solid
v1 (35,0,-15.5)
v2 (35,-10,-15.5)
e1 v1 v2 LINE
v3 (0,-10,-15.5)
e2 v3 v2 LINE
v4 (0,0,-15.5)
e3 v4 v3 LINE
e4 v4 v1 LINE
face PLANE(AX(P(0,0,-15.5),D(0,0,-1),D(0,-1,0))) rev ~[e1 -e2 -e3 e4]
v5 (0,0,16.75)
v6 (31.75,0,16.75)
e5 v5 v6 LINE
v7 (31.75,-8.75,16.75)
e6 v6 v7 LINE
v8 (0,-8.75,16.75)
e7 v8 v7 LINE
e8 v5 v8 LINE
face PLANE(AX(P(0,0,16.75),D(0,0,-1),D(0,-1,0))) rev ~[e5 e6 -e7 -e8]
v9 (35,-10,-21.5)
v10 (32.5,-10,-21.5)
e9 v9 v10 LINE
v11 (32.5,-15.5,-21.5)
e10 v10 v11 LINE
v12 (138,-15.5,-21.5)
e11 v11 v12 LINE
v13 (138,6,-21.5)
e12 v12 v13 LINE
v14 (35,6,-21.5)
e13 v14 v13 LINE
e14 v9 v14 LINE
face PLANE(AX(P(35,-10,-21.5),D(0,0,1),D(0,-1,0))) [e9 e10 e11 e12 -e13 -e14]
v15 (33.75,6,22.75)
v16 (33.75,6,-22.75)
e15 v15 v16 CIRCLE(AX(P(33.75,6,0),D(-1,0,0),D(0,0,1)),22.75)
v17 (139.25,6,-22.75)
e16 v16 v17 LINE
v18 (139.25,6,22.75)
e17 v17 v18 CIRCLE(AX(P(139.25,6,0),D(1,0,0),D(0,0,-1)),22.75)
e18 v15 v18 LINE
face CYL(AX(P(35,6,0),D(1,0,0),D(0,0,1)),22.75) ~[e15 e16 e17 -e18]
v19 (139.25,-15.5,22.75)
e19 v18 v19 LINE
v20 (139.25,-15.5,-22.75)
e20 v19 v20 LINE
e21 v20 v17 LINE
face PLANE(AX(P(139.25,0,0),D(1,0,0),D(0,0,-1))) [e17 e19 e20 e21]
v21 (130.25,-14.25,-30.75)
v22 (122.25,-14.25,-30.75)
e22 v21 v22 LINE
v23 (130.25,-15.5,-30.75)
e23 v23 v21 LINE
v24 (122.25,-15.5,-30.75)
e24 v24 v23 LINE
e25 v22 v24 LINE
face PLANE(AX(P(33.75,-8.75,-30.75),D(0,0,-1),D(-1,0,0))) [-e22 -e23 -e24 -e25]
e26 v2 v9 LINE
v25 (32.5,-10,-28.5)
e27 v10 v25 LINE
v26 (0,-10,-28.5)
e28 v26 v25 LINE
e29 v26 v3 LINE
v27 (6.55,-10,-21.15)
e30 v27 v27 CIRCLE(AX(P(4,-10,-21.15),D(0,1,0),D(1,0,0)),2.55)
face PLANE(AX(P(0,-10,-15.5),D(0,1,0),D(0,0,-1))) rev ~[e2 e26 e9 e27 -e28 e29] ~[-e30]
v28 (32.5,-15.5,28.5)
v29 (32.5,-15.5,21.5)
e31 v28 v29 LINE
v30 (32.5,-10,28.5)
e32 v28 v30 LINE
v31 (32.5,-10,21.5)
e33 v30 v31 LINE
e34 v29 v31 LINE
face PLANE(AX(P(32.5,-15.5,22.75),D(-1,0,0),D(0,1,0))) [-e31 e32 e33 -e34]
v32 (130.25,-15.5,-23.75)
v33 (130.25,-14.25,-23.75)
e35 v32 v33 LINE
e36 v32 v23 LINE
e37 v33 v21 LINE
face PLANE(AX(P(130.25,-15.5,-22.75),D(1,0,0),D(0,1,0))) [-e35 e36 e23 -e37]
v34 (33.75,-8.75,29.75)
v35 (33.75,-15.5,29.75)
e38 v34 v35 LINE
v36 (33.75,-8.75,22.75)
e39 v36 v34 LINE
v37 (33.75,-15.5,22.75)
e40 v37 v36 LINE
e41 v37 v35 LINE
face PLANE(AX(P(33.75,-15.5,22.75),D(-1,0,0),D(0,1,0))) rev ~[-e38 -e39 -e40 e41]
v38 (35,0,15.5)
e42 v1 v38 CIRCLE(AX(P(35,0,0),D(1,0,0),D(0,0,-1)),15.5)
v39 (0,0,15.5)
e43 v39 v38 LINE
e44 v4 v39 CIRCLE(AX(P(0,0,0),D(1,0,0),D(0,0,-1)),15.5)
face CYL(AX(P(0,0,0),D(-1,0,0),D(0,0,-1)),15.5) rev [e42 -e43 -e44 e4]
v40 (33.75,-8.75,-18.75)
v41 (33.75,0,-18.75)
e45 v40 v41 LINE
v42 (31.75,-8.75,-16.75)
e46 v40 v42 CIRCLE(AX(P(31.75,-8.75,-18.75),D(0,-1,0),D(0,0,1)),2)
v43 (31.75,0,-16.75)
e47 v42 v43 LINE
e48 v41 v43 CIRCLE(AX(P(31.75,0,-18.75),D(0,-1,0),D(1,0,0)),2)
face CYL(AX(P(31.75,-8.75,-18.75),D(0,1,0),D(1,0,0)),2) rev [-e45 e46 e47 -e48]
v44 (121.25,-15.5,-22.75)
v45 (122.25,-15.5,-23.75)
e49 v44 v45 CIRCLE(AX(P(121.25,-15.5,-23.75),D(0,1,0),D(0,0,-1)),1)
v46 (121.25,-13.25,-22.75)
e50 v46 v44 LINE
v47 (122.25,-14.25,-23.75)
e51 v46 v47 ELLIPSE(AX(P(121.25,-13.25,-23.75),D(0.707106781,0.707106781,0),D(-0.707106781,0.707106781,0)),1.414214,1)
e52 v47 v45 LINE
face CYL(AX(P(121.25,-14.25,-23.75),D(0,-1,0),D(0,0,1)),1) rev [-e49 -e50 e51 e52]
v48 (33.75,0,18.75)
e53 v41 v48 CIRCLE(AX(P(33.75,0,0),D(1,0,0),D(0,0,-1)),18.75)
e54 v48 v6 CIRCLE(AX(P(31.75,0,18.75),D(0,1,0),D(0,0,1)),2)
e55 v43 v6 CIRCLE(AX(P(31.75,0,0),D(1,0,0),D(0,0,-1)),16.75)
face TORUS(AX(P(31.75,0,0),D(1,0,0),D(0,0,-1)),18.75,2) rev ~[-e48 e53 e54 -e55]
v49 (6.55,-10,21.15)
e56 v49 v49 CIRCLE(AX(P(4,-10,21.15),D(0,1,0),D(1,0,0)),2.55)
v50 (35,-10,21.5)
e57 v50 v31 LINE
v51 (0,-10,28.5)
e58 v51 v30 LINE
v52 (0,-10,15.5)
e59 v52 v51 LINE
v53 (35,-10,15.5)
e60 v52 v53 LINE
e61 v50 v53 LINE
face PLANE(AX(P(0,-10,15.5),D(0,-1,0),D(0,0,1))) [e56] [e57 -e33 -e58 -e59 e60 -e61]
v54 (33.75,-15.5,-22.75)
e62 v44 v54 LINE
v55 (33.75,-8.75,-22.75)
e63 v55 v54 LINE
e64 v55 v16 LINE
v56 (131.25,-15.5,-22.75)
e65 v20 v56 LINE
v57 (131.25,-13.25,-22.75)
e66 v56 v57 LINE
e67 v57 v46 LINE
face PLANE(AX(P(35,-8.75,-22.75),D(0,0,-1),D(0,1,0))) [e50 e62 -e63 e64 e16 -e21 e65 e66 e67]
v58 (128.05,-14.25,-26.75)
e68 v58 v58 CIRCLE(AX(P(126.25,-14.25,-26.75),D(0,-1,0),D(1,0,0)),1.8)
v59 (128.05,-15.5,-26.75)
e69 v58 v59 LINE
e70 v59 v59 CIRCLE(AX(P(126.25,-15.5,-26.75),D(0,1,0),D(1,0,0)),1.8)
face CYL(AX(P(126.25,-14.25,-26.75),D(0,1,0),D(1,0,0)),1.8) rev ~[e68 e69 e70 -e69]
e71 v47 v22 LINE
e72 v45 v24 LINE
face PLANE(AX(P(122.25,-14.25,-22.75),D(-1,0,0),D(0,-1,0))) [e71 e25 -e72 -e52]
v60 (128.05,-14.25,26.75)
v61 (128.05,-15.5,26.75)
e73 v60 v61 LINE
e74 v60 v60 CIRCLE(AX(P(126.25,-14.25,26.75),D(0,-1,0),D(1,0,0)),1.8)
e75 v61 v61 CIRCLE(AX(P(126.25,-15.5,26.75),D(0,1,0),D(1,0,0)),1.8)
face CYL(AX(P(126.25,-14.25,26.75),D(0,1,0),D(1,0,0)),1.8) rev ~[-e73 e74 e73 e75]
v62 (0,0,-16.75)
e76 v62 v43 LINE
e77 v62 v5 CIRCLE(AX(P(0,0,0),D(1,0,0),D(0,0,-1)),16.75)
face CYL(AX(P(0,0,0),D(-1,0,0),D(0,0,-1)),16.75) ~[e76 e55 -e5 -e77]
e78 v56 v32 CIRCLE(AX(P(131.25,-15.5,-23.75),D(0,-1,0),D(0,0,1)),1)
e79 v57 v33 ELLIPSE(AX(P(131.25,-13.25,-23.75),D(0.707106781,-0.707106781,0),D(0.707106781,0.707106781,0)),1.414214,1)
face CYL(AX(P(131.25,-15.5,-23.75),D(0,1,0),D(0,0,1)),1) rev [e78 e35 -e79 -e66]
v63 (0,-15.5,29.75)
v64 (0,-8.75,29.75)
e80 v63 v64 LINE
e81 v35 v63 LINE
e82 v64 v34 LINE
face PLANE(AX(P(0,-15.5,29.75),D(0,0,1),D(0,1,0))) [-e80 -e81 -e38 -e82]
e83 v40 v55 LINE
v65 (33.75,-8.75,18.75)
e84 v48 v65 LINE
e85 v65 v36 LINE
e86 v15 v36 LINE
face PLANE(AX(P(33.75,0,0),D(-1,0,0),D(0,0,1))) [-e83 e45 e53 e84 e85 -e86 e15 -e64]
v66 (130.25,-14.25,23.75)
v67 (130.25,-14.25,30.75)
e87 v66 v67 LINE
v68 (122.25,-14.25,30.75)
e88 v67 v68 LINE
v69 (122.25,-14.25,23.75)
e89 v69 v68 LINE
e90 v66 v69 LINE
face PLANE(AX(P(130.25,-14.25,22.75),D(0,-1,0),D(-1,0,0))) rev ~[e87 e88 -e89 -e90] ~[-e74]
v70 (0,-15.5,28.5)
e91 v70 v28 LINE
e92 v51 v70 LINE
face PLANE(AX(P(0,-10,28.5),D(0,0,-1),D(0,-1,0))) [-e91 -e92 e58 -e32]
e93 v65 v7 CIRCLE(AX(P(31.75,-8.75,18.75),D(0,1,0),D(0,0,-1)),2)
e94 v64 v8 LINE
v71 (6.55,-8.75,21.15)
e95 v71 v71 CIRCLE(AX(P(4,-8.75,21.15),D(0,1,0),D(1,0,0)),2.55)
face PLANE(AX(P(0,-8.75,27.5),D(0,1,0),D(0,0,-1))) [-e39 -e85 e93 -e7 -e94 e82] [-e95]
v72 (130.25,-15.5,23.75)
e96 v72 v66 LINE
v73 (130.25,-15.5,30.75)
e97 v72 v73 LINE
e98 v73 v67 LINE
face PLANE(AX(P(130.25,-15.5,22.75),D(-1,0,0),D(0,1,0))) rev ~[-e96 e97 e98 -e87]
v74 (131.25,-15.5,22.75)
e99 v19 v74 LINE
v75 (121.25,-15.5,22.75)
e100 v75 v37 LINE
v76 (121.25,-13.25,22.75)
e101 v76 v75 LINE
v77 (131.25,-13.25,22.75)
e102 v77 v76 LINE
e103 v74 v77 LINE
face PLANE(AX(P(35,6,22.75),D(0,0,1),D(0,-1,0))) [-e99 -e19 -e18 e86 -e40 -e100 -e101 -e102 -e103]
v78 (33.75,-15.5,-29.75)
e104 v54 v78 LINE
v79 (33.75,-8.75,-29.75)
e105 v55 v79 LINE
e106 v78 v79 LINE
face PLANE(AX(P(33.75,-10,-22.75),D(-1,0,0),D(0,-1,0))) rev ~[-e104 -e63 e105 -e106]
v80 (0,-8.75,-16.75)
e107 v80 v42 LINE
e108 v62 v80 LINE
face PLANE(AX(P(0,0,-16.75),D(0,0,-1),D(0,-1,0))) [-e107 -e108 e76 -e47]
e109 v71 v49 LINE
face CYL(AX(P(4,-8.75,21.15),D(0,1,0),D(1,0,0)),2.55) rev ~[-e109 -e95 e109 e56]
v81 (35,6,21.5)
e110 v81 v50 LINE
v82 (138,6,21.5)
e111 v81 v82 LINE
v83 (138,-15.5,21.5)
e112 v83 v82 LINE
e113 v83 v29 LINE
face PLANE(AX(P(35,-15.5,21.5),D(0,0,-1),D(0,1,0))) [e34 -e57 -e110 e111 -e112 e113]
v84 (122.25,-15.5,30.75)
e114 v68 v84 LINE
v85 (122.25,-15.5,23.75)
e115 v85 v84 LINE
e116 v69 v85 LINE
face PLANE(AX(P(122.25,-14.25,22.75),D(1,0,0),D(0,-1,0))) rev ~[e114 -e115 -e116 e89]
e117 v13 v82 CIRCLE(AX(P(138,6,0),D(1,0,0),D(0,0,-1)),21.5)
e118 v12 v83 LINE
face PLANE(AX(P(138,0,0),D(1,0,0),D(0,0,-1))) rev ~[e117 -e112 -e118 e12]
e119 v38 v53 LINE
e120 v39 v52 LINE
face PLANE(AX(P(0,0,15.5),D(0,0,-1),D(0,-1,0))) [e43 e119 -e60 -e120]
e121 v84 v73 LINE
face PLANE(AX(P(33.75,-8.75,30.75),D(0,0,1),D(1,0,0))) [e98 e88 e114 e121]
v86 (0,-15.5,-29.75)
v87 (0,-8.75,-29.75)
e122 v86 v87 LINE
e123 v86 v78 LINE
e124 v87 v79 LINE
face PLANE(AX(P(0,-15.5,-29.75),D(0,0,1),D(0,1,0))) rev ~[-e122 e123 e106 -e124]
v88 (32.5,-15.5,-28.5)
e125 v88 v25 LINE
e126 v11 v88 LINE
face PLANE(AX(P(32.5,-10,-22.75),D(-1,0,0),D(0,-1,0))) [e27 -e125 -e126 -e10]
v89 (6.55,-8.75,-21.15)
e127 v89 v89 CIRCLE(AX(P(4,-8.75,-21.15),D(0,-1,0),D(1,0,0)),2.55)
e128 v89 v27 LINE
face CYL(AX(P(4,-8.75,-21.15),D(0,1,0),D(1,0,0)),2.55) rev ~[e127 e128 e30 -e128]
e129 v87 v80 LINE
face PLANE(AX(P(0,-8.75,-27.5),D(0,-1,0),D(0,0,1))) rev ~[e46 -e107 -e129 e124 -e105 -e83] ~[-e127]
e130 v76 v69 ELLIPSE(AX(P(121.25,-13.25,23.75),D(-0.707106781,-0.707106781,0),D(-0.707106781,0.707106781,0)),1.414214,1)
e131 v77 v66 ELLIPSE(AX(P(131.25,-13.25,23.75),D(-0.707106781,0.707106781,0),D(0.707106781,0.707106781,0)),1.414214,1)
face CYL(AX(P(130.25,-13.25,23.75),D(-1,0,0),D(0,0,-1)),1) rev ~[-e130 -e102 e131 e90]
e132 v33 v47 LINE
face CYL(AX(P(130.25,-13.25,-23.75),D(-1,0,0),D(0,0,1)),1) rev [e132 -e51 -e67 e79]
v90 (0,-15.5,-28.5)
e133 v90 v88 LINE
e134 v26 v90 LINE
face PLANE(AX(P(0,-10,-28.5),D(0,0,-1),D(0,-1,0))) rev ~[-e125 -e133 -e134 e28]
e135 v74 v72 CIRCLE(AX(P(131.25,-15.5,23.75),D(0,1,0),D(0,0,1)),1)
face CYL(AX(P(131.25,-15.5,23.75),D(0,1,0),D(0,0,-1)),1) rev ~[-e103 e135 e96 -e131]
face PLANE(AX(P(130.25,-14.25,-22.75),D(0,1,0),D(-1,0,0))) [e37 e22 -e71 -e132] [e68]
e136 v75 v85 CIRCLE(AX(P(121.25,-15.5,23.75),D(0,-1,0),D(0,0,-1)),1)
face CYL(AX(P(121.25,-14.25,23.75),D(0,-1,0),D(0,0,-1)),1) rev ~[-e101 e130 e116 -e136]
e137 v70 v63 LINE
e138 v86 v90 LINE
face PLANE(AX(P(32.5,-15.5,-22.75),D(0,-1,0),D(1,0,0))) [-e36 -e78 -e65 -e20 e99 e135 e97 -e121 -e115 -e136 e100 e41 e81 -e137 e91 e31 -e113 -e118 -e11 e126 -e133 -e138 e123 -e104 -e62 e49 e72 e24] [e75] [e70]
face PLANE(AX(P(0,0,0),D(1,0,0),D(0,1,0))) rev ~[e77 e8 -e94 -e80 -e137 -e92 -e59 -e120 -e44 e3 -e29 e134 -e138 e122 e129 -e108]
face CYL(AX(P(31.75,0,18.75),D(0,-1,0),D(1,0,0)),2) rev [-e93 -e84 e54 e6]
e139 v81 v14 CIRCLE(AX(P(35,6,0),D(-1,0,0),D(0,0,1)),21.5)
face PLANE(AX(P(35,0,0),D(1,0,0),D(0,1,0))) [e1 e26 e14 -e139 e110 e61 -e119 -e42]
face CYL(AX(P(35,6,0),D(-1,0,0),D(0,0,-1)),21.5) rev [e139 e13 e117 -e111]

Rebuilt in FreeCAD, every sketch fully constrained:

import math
import FreeCAD as App
import Part
import Sketcher

V = App.Vector
Q = App.Units.Quantity


def edges_at(feature, points):
    """Names of the edges that pass closest to the given points."""
    edges = feature.Shape.Edges
    near = lambda p: min(range(len(edges)), key=lambda i: edges[i].distToShape(Part.Vertex(*p))[0])
    return sorted({f"Edge{near(p) + 1}" for p in points})

doc = App.newDocument("Part")
body = doc.addObject("PartDesign::Body", "Body")

# Sketch on YZ plane
sketch1 = body.newObject("Sketcher::SketchObject", "Sketch")
sketch1.AttachmentSupport = (doc.getObject("YZ_Plane"), [""])
sketch1.MapMode = "FlatFace"
sketch1.addGeometry([
    Part.LineSegment(V(-8.8, -16.8, 0), V(0, -16.8, 0)),  # 0
    Part.ArcOfCircle(Part.Circle(V(0, 0, 0), V(0, 0, 1), 16.8), math.radians(-90), math.radians(90)),  # 1
    Part.LineSegment(V(0, 16.8, 0), V(-8.8, 16.8, 0)),  # 2
    Part.LineSegment(V(-8.8, 16.8, 0), V(-8.8, 29.8, 0)),  # 3
    Part.LineSegment(V(-8.8, 29.8, 0), V(-15.5, 29.8, 0)),  # 4
    Part.LineSegment(V(-15.5, 29.8, 0), V(-15.5, 28.5, 0)),  # 5
    Part.LineSegment(V(-15.5, 28.5, 0), V(-10, 28.5, 0)),  # 6
    Part.LineSegment(V(-10, 28.5, 0), V(-10, 15.5, 0)),  # 7
    Part.LineSegment(V(-10, 15.5, 0), V(0, 15.5, 0)),  # 8
    Part.ArcOfCircle(Part.Circle(V(0, 0, 0), V(0, 0, 1), 15.5), math.radians(-90), math.radians(90)),  # 9
    Part.LineSegment(V(0, -15.5, 0), V(-10, -15.5, 0)),  # 10
    Part.LineSegment(V(-10, -15.5, 0), V(-10, -28.5, 0)),  # 11
    Part.LineSegment(V(-10, -28.5, 0), V(-15.5, -28.5, 0)),  # 12
    Part.LineSegment(V(-15.5, -28.5, 0), V(-15.5, -29.8, 0)),  # 13
    Part.LineSegment(V(-15.5, -29.8, 0), V(-8.8, -29.8, 0)),  # 14
    Part.LineSegment(V(-8.8, -29.8, 0), V(-8.8, -16.8, 0)),  # 15
], False)
sketch1.addConstraint([
    Sketcher.Constraint("Tangent", 0, 2, 1, 1),
    Sketcher.Constraint("Tangent", 1, 2, 2, 1),
    Sketcher.Constraint("Coincident", 2, 2, 3, 1),
    Sketcher.Constraint("Coincident", 3, 2, 4, 1),
    Sketcher.Constraint("Coincident", 4, 2, 5, 1),
    Sketcher.Constraint("Coincident", 5, 2, 6, 1),
    Sketcher.Constraint("Coincident", 6, 2, 7, 1),
    Sketcher.Constraint("Coincident", 7, 2, 8, 1),
    Sketcher.Constraint("Tangent", 8, 2, 9, 2),
    Sketcher.Constraint("Tangent", 9, 1, 10, 1),
    Sketcher.Constraint("Coincident", 10, 2, 11, 1),
    Sketcher.Constraint("Coincident", 11, 2, 12, 1),
    Sketcher.Constraint("Coincident", 12, 2, 13, 1),
    Sketcher.Constraint("Coincident", 13, 2, 14, 1),
    Sketcher.Constraint("Coincident", 14, 2, 15, 1),
    Sketcher.Constraint("Coincident", 15, 2, 0, 1),
    Sketcher.Constraint("Horizontal", 0),
    Sketcher.Constraint("Horizontal", 2),
    Sketcher.Constraint("Vertical", 3),
    Sketcher.Constraint("Horizontal", 4),
    Sketcher.Constraint("Vertical", 5),
    Sketcher.Constraint("Horizontal", 6),
    Sketcher.Constraint("Vertical", 7),
    Sketcher.Constraint("Horizontal", 8),
    Sketcher.Constraint("Horizontal", 10),
    Sketcher.Constraint("Vertical", 11),
    Sketcher.Constraint("Horizontal", 12),
    Sketcher.Constraint("Vertical", 13),
    Sketcher.Constraint("Horizontal", 14),
    Sketcher.Constraint("Vertical", 15),
    Sketcher.Constraint("Coincident", 1, 3, -1, 1),
    Sketcher.Constraint("Coincident", 9, 3, -1, 1),
    Sketcher.Constraint("Symmetric", 6, 2, 11, 2, -1),
    Sketcher.Constraint("Symmetric", 4, 2, 13, 2, -1),
    Sketcher.Constraint("Vertical", 3, 2, 14, 2),
    Sketcher.Constraint("Equal", 3, 7),
    Sketcher.Constraint("Radius", 9, Q("15.5 mm")),
    Sketcher.Constraint("DistanceX", 8, 1, 8, 2, Q("10 mm")),
    Sketcher.Constraint("DistanceY", 5, 2, 5, 1, Q("1.25 mm")),
    Sketcher.Constraint("DistanceY", 3, 1, 3, 2, Q("13 mm")),
    Sketcher.Constraint("DistanceX", 6, 2, 3, 2, Q("1.25 mm")),
    Sketcher.Constraint("DistanceX", 6, 1, 6, 2, Q("5.5 mm")),
])
pad1 = body.newObject("PartDesign::Pad", "Pad")
pad1.Profile = sketch1
pad1.Length = 35

# Sketch on YZ plane
sketch2 = body.newObject("Sketcher::SketchObject", "Sketch001")
sketch2.AttachmentSupport = (doc.getObject("YZ_Plane"), [""])
sketch2.MapMode = "FlatFace"
sketch2.AttachmentOffset = App.Placement(V(0, 0, 35), App.Rotation())
sketch2.addGeometry([
    Part.LineSegment(V(6, -21.5, 0), V(-15.5, -21.5, 0)),  # 0
    Part.LineSegment(V(-15.5, -21.5, 0), V(-15.5, -22.8, 0)),  # 1
    Part.LineSegment(V(-15.5, -22.8, 0), V(6, -22.8, 0)),  # 2
    Part.ArcOfCircle(Part.Circle(V(6, 0, 0), V(0, 0, 1), 22.8), math.radians(-90), math.radians(90)),  # 3
    Part.LineSegment(V(6, 22.8, 0), V(-15.5, 22.8, 0)),  # 4
    Part.LineSegment(V(-15.5, 22.8, 0), V(-15.5, 21.5, 0)),  # 5
    Part.LineSegment(V(-15.5, 21.5, 0), V(6, 21.5, 0)),  # 6
    Part.ArcOfCircle(Part.Circle(V(6, 0, 0), V(0, 0, 1), 21.5), math.radians(-90), math.radians(90)),  # 7
], False)
sketch2.addConstraint([
    Sketcher.Constraint("Coincident", 0, 2, 1, 1),
    Sketcher.Constraint("Coincident", 1, 2, 2, 1),
    Sketcher.Constraint("Tangent", 2, 2, 3, 1),
    Sketcher.Constraint("Tangent", 3, 2, 4, 1),
    Sketcher.Constraint("Coincident", 4, 2, 5, 1),
    Sketcher.Constraint("Coincident", 5, 2, 6, 1),
    Sketcher.Constraint("Tangent", 6, 2, 7, 2),
    Sketcher.Constraint("Tangent", 7, 1, 0, 1),
    Sketcher.Constraint("Horizontal", 0),
    Sketcher.Constraint("Vertical", 1),
    Sketcher.Constraint("Horizontal", 2),
    Sketcher.Constraint("Horizontal", 4),
    Sketcher.Constraint("Vertical", 5),
    Sketcher.Constraint("Horizontal", 6),
    Sketcher.Constraint("Coincident", 7, 3, 3, 3),
    Sketcher.Constraint("Symmetric", 1, 2, 4, 2, -1),
    Sketcher.Constraint("Radius", 7, Q("21.5 mm")),
    Sketcher.Constraint("DistanceX", 0, 2, 0, 1, Q("21.5 mm")),
    Sketcher.Constraint("DistanceY", 1, 2, 1, 1, Q("1.25 mm")),
    Sketcher.Constraint("DistanceX", -1, 1, 3, 3, Q("6 mm")),
])
pad2 = body.newObject("PartDesign::Pad", "Pad001")
pad2.Profile = sketch2
pad2.Length = 103

# Sketch on YZ plane
sketch3 = body.newObject("Sketcher::SketchObject", "Sketch002")
sketch3.AttachmentSupport = (doc.getObject("YZ_Plane"), [""])
sketch3.MapMode = "FlatFace"
sketch3.AttachmentOffset = App.Placement(V(0, 0, 35), App.Rotation())
sketch3.addGeometry([
    Part.LineSegment(V(6, -23, 0), V(-9, -23, 0)),  # 0
    Part.LineSegment(V(-9, -23, 0), V(-9, -17, 0)),  # 1
    Part.LineSegment(V(-9, -17, 0), V(0, -17, 0)),  # 2
    Part.ArcOfCircle(Part.Circle(V(0, 0, 0), V(0, 0, 1), 17), math.radians(-90), math.radians(90)),  # 3
    Part.LineSegment(V(0, 17, 0), V(-9, 17, 0)),  # 4
    Part.LineSegment(V(-9, 17, 0), V(-9, 23, 0)),  # 5
    Part.LineSegment(V(-9, 23, 0), V(6, 23, 0)),  # 6
    Part.ArcOfCircle(Part.Circle(V(6, 0, 0), V(0, 0, 1), 23), math.radians(-90), math.radians(90)),  # 7
], False)
sketch3.addConstraint([
    Sketcher.Constraint("Coincident", 0, 2, 1, 1),
    Sketcher.Constraint("Coincident", 1, 2, 2, 1),
    Sketcher.Constraint("Tangent", 2, 2, 3, 1),
    Sketcher.Constraint("Tangent", 3, 2, 4, 1),
    Sketcher.Constraint("Coincident", 4, 2, 5, 1),
    Sketcher.Constraint("Coincident", 5, 2, 6, 1),
    Sketcher.Constraint("Tangent", 6, 2, 7, 2),
    Sketcher.Constraint("Tangent", 7, 1, 0, 1),
    Sketcher.Constraint("Horizontal", 0),
    Sketcher.Constraint("Vertical", 1),
    Sketcher.Constraint("Horizontal", 2),
    Sketcher.Constraint("Horizontal", 4),
    Sketcher.Constraint("Vertical", 5),
    Sketcher.Constraint("Horizontal", 6),
    Sketcher.Constraint("Coincident", 3, 3, -1, 1),
    Sketcher.Constraint("Symmetric", 0, 2, 5, 2, -1),
    Sketcher.Constraint("DistanceY", 1, 1, 1, 2, Q("6 mm")),
    Sketcher.Constraint("Radius", 3, Q("16.75 mm")),
    Sketcher.Constraint("DistanceX", -1, 1, 7, 3, Q("6 mm")),
    Sketcher.Constraint("DistanceX", 0, 2, 0, 1, Q("14.75 mm")),
])
pad3 = body.newObject("PartDesign::Pad", "Pad002")
pad3.Profile = sketch3
pad3.Length = 1.25
pad3.Reversed = True

# Sketch on XZ plane
sketch4 = body.newObject("Sketcher::SketchObject", "Sketch003")
sketch4.AttachmentSupport = (doc.getObject("XZ_Plane"), [""])
sketch4.MapMode = "FlatFace"
sketch4.AttachmentOffset = App.Placement(V(0, 0, 8.75), App.Rotation())
sketch4.addGeometry([
    Part.LineSegment(V(35, 22.8, 0), V(33.8, 22.8, 0)),  # 0
    Part.LineSegment(V(33.8, 22.8, 0), V(33.8, 29.8, 0)),  # 1
    Part.LineSegment(V(33.8, 29.8, 0), V(35, 29.8, 0)),  # 2
    Part.LineSegment(V(35, 29.8, 0), V(35, 22.8, 0)),  # 3
    Part.LineSegment(V(33.8, -29.8, 0), V(33.8, -22.8, 0)),  # 4
    Part.LineSegment(V(33.8, -22.8, 0), V(35, -22.8, 0)),  # 5
    Part.LineSegment(V(35, -22.8, 0), V(35, -29.8, 0)),  # 6
    Part.LineSegment(V(35, -29.8, 0), V(33.8, -29.8, 0)),  # 7
], False)
sketch4.addConstraint([
    Sketcher.Constraint("Coincident", 0, 2, 1, 1),
    Sketcher.Constraint("Coincident", 1, 2, 2, 1),
    Sketcher.Constraint("Coincident", 2, 2, 3, 1),
    Sketcher.Constraint("Coincident", 3, 2, 0, 1),
    Sketcher.Constraint("Coincident", 4, 2, 5, 1),
    Sketcher.Constraint("Coincident", 5, 2, 6, 1),
    Sketcher.Constraint("Coincident", 6, 2, 7, 1),
    Sketcher.Constraint("Coincident", 7, 2, 4, 1),
    Sketcher.Constraint("Horizontal", 0),
    Sketcher.Constraint("Vertical", 1),
    Sketcher.Constraint("Horizontal", 2),
    Sketcher.Constraint("Vertical", 3),
    Sketcher.Constraint("Vertical", 4),
    Sketcher.Constraint("Horizontal", 5),
    Sketcher.Constraint("Vertical", 6),
    Sketcher.Constraint("Horizontal", 7),
    Sketcher.Constraint("Symmetric", 0, 2, 4, 2, -1),
    Sketcher.Constraint("Symmetric", 2, 2, 6, 2, -1),
    Sketcher.Constraint("DistanceY", 1, 1, 1, 2, Q("7 mm")),
    Sketcher.Constraint("DistanceX", -1, 1, 2, 2, Q("35 mm")),
    Sketcher.Constraint("DistanceX", 0, 2, 0, 1, Q("1.25 mm")),
    Sketcher.Constraint("DistanceY", 4, 2, 0, 2, Q("45.5 mm")),
])
pocket1 = body.newObject("PartDesign::Pocket", "Pocket")
pocket1.Profile = sketch4
pocket1.Type = "ThroughAll"
pocket1.Reversed = True

# Sketch on YZ plane
sketch5 = body.newObject("Sketcher::SketchObject", "Sketch004")
sketch5.AttachmentSupport = (doc.getObject("YZ_Plane"), [""])
sketch5.MapMode = "FlatFace"
sketch5.AttachmentOffset = App.Placement(V(0, 0, 35), App.Rotation())
sketch5.addGeometry([
    Part.LineSegment(V(-15.5, -21.5, 0), V(-10, -21.5, 0)),  # 0
    Part.LineSegment(V(-10, -21.5, 0), V(-10, -22.8, 0)),  # 1
    Part.LineSegment(V(-10, -22.8, 0), V(-15.5, -22.8, 0)),  # 2
    Part.LineSegment(V(-15.5, -22.8, 0), V(-15.5, -21.5, 0)),  # 3
    Part.LineSegment(V(-15.5, 22.8, 0), V(-10, 22.8, 0)),  # 4
    Part.LineSegment(V(-10, 22.8, 0), V(-10, 21.5, 0)),  # 5
    Part.LineSegment(V(-10, 21.5, 0), V(-15.5, 21.5, 0)),  # 6
    Part.LineSegment(V(-15.5, 21.5, 0), V(-15.5, 22.8, 0)),  # 7
], False)
sketch5.addConstraint([
    Sketcher.Constraint("Coincident", 0, 2, 1, 1),
    Sketcher.Constraint("Coincident", 1, 2, 2, 1),
    Sketcher.Constraint("Coincident", 2, 2, 3, 1),
    Sketcher.Constraint("Coincident", 3, 2, 0, 1),
    Sketcher.Constraint("Coincident", 4, 2, 5, 1),
    Sketcher.Constraint("Coincident", 5, 2, 6, 1),
    Sketcher.Constraint("Coincident", 6, 2, 7, 1),
    Sketcher.Constraint("Coincident", 7, 2, 4, 1),
    Sketcher.Constraint("Horizontal", 0),
    Sketcher.Constraint("Vertical", 1),
    Sketcher.Constraint("Horizontal", 2),
    Sketcher.Constraint("Vertical", 3),
    Sketcher.Constraint("Horizontal", 4),
    Sketcher.Constraint("Vertical", 5),
    Sketcher.Constraint("Horizontal", 6),
    Sketcher.Constraint("Vertical", 7),
    Sketcher.Constraint("Symmetric", 1, 2, 4, 2, -1),
    Sketcher.Constraint("Symmetric", 3, 2, 6, 2, -1),
    Sketcher.Constraint("DistanceX", 0, 1, 0, 2, Q("5.5 mm")),
    Sketcher.Constraint("DistanceX", 0, 2, -1, 1, Q("10 mm")),
    Sketcher.Constraint("DistanceY", 0, 2, 5, 2, Q("43 mm")),
    Sketcher.Constraint("DistanceY", 1, 2, 1, 1, Q("1.25 mm")),
])
pad4 = body.newObject("PartDesign::Pad", "Pad003")
pad4.Profile = sketch5
pad4.Length = 2.5
pad4.Reversed = True

# Sketch on XY plane
sketch6 = body.newObject("Sketcher::SketchObject", "Sketch005")
sketch6.AttachmentSupport = (doc.getObject("XY_Plane"), [""])
sketch6.MapMode = "FlatFace"
sketch6.AttachmentOffset = App.Placement(V(0, 0, 22.75), App.Rotation())
sketch6.addGeometry([
    Part.LineSegment(V(32.5, -15.5, 0), V(33.8, -15.5, 0)),
    Part.LineSegment(V(33.8, -15.5, 0), V(33.8, -10, 0)),
    Part.LineSegment(V(33.8, -10, 0), V(32.5, -10, 0)),
    Part.LineSegment(V(32.5, -10, 0), V(32.5, -15.5, 0)),
], False)
sketch6.addConstraint([
    Sketcher.Constraint("Coincident", 0, 2, 1, 1),
    Sketcher.Constraint("Coincident", 1, 2, 2, 1),
    Sketcher.Constraint("Coincident", 2, 2, 3, 1),
    Sketcher.Constraint("Coincident", 3, 2, 0, 1),
    Sketcher.Constraint("Horizontal", 0),
    Sketcher.Constraint("Vertical", 1),
    Sketcher.Constraint("Horizontal", 2),
    Sketcher.Constraint("Vertical", 3),
    Sketcher.Constraint("DistanceY", 1, 1, 1, 2, Q("5.5 mm")),
    Sketcher.Constraint("DistanceY", 1, 2, -1, 1, Q("10 mm")),
    Sketcher.Constraint("DistanceX", 0, 1, 0, 2, Q("1.25 mm")),
    Sketcher.Constraint("DistanceX", -1, 1, 2, 2, Q("32.5 mm")),
])
pad5 = body.newObject("PartDesign::Pad", "Pad004")
pad5.Profile = sketch6
pad5.Length = 7

# Sketch on XY plane
sketch7 = body.newObject("Sketcher::SketchObject", "Sketch006")
sketch7.AttachmentSupport = (doc.getObject("XY_Plane"), [""])
sketch7.MapMode = "FlatFace"
sketch7.AttachmentOffset = App.Placement(V(0, 0, -22.75), App.Rotation())
sketch7.addGeometry([
    Part.LineSegment(V(32.5, -10, 0), V(33.8, -10, 0)),
    Part.LineSegment(V(33.8, -10, 0), V(33.8, -15.5, 0)),
    Part.LineSegment(V(33.8, -15.5, 0), V(32.5, -15.5, 0)),
    Part.LineSegment(V(32.5, -15.5, 0), V(32.5, -10, 0)),
], False)
sketch7.addConstraint([
    Sketcher.Constraint("Coincident", 0, 2, 1, 1),
    Sketcher.Constraint("Coincident", 1, 2, 2, 1),
    Sketcher.Constraint("Coincident", 2, 2, 3, 1),
    Sketcher.Constraint("Coincident", 3, 2, 0, 1),
    Sketcher.Constraint("Horizontal", 0),
    Sketcher.Constraint("Vertical", 1),
    Sketcher.Constraint("Horizontal", 2),
    Sketcher.Constraint("Vertical", 3),
    Sketcher.Constraint("DistanceY", 1, 2, 1, 1, Q("5.5 mm")),
    Sketcher.Constraint("DistanceY", 0, 2, -1, 1, Q("10 mm")),
    Sketcher.Constraint("DistanceX", 0, 1, 0, 2, Q("1.25 mm")),
    Sketcher.Constraint("DistanceX", -1, 1, 2, 2, Q("32.5 mm")),
])
pad6 = body.newObject("PartDesign::Pad", "Pad005")
pad6.Profile = sketch7
pad6.Length = 7
pad6.Reversed = True

# Sketch on YZ plane
sketch8 = body.newObject("Sketcher::SketchObject", "Sketch007")
sketch8.AttachmentSupport = (doc.getObject("YZ_Plane"), [""])
sketch8.MapMode = "FlatFace"
sketch8.AttachmentOffset = App.Placement(V(0, 0, 138), App.Rotation())
sketch8.addGeometry([
    Part.ArcOfCircle(Part.Circle(V(6, 0, 0), V(0, 0, 1), 23), math.radians(-90), math.radians(90)),
    Part.LineSegment(V(6, 23, 0), V(-16, 23, 0)),
    Part.LineSegment(V(-16, 23, 0), V(-16, -23, 0)),
    Part.LineSegment(V(-16, -23, 0), V(6, -23, 0)),
], False)
sketch8.addConstraint([
    Sketcher.Constraint("Tangent", 0, 2, 1, 1),
    Sketcher.Constraint("Coincident", 1, 2, 2, 1),
    Sketcher.Constraint("Coincident", 2, 2, 3, 1),
    Sketcher.Constraint("Tangent", 3, 2, 0, 1),
    Sketcher.Constraint("Horizontal", 1),
    Sketcher.Constraint("Vertical", 2),
    Sketcher.Constraint("Horizontal", 3),
    Sketcher.Constraint("PointOnObject", 0, 3, -1),
    Sketcher.Constraint("Radius", 0, Q("22.75 mm")),
    Sketcher.Constraint("DistanceX", 1, 2, 1, 1, Q("21.5 mm")),
    Sketcher.Constraint("DistanceX", -1, 1, 0, 3, Q("6 mm")),
])
pad7 = body.newObject("PartDesign::Pad", "Pad006")
pad7.Profile = sketch8
pad7.Length = 1.25

# Sketch on XY plane
sketch9 = body.newObject("Sketcher::SketchObject", "Sketch008")
sketch9.AttachmentSupport = (doc.getObject("XY_Plane"), [""])
sketch9.MapMode = "FlatFace"
sketch9.AttachmentOffset = App.Placement(V(0, 0, 22.75), App.Rotation())
sketch9.addGeometry([
    Part.LineSegment(V(122.2, -14.2, 0), V(122.2, -15.5, 0)),
    Part.LineSegment(V(122.2, -15.5, 0), V(130.2, -15.5, 0)),
    Part.LineSegment(V(130.2, -15.5, 0), V(130.2, -14.2, 0)),
    Part.LineSegment(V(130.2, -14.2, 0), V(122.2, -14.2, 0)),
], False)
sketch9.addConstraint([
    Sketcher.Constraint("Coincident", 0, 2, 1, 1),
    Sketcher.Constraint("Coincident", 1, 2, 2, 1),
    Sketcher.Constraint("Coincident", 2, 2, 3, 1),
    Sketcher.Constraint("Coincident", 3, 2, 0, 1),
    Sketcher.Constraint("Vertical", 0),
    Sketcher.Constraint("Horizontal", 1),
    Sketcher.Constraint("Vertical", 2),
    Sketcher.Constraint("Horizontal", 3),
    Sketcher.Constraint("DistanceX", 1, 1, 1, 2, Q("8 mm")),
    Sketcher.Constraint("DistanceY", 0, 2, 0, 1, Q("1.25 mm")),
    Sketcher.Constraint("DistanceY", 0, 2, -1, 1, Q("15.5 mm")),
    Sketcher.Constraint("DistanceX", -1, 1, 0, 2, Q("122.25 mm")),
])
pad8 = body.newObject("PartDesign::Pad", "Pad007")
pad8.Profile = sketch9
pad8.Length = 8

# Sketch on XY plane
sketch10 = body.newObject("Sketcher::SketchObject", "Sketch009")
sketch10.AttachmentSupport = (doc.getObject("XY_Plane"), [""])
sketch10.MapMode = "FlatFace"
sketch10.AttachmentOffset = App.Placement(V(0, 0, -22.75), App.Rotation())
sketch10.addGeometry([
    Part.LineSegment(V(130.2, -15.5, 0), V(122.2, -15.5, 0)),
    Part.LineSegment(V(122.2, -15.5, 0), V(122.2, -14.2, 0)),
    Part.LineSegment(V(122.2, -14.2, 0), V(130.2, -14.2, 0)),
    Part.LineSegment(V(130.2, -14.2, 0), V(130.2, -15.5, 0)),
], False)
sketch10.addConstraint([
    Sketcher.Constraint("Coincident", 0, 2, 1, 1),
    Sketcher.Constraint("Coincident", 1, 2, 2, 1),
    Sketcher.Constraint("Coincident", 2, 2, 3, 1),
    Sketcher.Constraint("Coincident", 3, 2, 0, 1),
    Sketcher.Constraint("Horizontal", 0),
    Sketcher.Constraint("Vertical", 1),
    Sketcher.Constraint("Horizontal", 2),
    Sketcher.Constraint("Vertical", 3),
    Sketcher.Constraint("DistanceX", 0, 2, 0, 1, Q("8 mm")),
    Sketcher.Constraint("DistanceY", 1, 1, 1, 2, Q("1.25 mm")),
    Sketcher.Constraint("DistanceY", 0, 2, -1, 1, Q("15.5 mm")),
    Sketcher.Constraint("DistanceX", -1, 1, 0, 2, Q("122.25 mm")),
])
pad9 = body.newObject("PartDesign::Pad", "Pad008")
pad9.Profile = sketch10
pad9.Length = 8
pad9.Reversed = True

# Sketch on XZ plane
sketch11 = body.newObject("Sketcher::SketchObject", "Sketch010")
sketch11.AttachmentSupport = (doc.getObject("XZ_Plane"), [""])
sketch11.MapMode = "FlatFace"
sketch11.AttachmentOffset = App.Placement(V(0, 0, 14.25), App.Rotation())
sketch11.addGeometry([
    Part.Circle(V(126.2, -26.8, 0), V(0, 0, 1), 1.8),
    Part.Circle(V(126.2, 26.8, 0), V(0, 0, 1), 1.8),
], False)
sketch11.addConstraint([
    Sketcher.Constraint("Equal", 0, 1),
    Sketcher.Constraint("Symmetric", 0, 3, 1, 3, -1),
    Sketcher.Constraint("Diameter", 0, Q("3.6 mm")),
    Sketcher.Constraint("DistanceY", 0, 3, 1, 3, Q("53.5 mm")),
    Sketcher.Constraint("DistanceX", -1, 1, 0, 3, Q("126.25 mm")),
])
pocket2 = body.newObject("PartDesign::Pocket", "Pocket001")
pocket2.Profile = sketch11
pocket2.Length = 8
pocket2.Reversed = True
doc.recompute()

fillet = body.newObject("PartDesign::Fillet", "Fillet")
fillet.Base = (pocket2, edges_at(pocket2, [
    (130.25, -14.875, 22.75),
    (126.25, -14.25, 22.75),
    (122.25, -14.875, 22.75),
    (130.25, -14.875, -22.75),
    (126.25, -14.25, -22.75),
    (122.25, -14.875, -22.75),
]))
fillet.Radius = 1
doc.recompute()

fillet2 = body.newObject("PartDesign::Fillet", "Fillet001")
fillet2.Base = (fillet, edges_at(fillet, [(33.75, -4.375, -16.75), (33.75, -4.375, 16.75), (33.75, 16.75, 0)]))
fillet2.Radius = 2

# Sketch on XZ plane
sketch12 = body.newObject("Sketcher::SketchObject", "Sketch011")
sketch12.AttachmentSupport = (doc.getObject("XZ_Plane"), [""])
sketch12.MapMode = "FlatFace"
sketch12.AttachmentOffset = App.Placement(V(0, 0, 8.75), App.Rotation())
sketch12.addGeometry([
    Part.Circle(V(4, -21.1, 0), V(0, 0, 1), 2.5),
    Part.Circle(V(4, 21.1, 0), V(0, 0, 1), 2.5),
], False)
sketch12.addConstraint([
    Sketcher.Constraint("Equal", 0, 1),
    Sketcher.Constraint("Symmetric", 0, 3, 1, 3, -1),
    Sketcher.Constraint("Diameter", 0, Q("5.1 mm")),
    Sketcher.Constraint("DistanceX", -1, 1, 0, 3, Q("4 mm")),
    Sketcher.Constraint("DistanceY", 0, 3, 1, 3, Q("42.3 mm")),
])
pocket3 = body.newObject("PartDesign::Pocket", "Pocket002")
pocket3.Profile = sketch12
pocket3.Length = 8
pocket3.Reversed = True

doc.recompute()
